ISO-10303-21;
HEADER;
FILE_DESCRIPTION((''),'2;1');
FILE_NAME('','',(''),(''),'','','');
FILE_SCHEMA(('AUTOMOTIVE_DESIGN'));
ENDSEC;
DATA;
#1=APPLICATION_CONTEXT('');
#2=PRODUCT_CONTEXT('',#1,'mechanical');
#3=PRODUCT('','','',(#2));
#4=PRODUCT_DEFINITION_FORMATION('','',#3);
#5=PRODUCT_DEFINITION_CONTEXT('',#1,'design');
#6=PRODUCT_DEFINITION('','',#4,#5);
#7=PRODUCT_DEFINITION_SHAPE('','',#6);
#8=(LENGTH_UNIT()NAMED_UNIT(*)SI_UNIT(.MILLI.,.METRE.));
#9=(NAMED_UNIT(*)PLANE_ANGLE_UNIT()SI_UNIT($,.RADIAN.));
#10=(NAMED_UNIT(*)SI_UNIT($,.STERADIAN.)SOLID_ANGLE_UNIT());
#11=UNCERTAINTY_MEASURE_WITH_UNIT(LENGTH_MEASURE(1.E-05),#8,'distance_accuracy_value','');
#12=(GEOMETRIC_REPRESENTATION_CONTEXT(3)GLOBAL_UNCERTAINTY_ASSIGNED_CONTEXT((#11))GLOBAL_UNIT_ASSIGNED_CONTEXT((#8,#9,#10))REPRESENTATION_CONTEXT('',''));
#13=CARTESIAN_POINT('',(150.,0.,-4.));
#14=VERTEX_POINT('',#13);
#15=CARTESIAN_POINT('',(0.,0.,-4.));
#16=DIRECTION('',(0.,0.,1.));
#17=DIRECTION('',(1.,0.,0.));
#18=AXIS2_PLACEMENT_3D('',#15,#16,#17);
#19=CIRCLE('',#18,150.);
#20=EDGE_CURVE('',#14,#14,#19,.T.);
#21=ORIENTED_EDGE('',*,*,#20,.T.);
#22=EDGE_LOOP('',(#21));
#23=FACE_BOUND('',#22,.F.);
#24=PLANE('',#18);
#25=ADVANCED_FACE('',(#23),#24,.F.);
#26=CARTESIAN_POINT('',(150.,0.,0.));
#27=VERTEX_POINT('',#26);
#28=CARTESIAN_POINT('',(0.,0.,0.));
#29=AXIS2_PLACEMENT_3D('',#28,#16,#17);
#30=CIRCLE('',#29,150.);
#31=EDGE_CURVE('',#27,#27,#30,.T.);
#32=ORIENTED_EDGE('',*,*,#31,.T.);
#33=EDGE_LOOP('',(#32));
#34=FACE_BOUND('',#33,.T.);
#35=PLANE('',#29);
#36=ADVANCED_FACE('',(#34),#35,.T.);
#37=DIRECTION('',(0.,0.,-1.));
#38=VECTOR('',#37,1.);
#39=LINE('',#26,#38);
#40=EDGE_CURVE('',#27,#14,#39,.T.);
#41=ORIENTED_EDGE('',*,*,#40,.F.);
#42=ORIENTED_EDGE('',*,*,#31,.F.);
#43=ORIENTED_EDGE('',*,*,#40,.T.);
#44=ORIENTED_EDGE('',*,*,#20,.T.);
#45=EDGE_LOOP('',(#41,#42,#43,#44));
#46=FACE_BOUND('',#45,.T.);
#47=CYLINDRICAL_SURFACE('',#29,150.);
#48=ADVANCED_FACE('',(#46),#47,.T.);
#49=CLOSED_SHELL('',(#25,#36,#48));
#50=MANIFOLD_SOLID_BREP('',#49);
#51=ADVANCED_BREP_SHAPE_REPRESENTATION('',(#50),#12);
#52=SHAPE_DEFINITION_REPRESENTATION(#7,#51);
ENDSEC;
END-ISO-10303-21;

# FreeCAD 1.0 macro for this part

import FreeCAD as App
import Part
import Sketcher
from FreeCAD import Vector
Q = App.Units.Quantity

doc = App.newDocument("Part")
params = doc.addObject("Spreadsheet::Sheet", "Params")
for row, (alias, value) in enumerate([
    ("sketch1_diameter", "300 mm"),
    ("pad1_length", "4 mm"),
], start=1):
    params.set(f"A{row}", alias)
    params.set(f"B{row}", "=" + value)
    params.setAlias(f"B{row}", alias)

body = doc.addObject("PartDesign::Body", "Body")

# Sketch on XY plane
sketch1 = body.newObject("Sketcher::SketchObject", "Sketch")
sketch1.AttachmentSupport = (doc.getObject("XY_Plane"), [""])
sketch1.MapMode = "FlatFace"
sketch1.addGeometry(Part.Circle(Vector(0, 0, 0), Vector(0, 0, 1), 150), False)
sketch1.addConstraint([
    Sketcher.Constraint("Coincident", 0, 3, -1, 1),
    Sketcher.Constraint("Diameter", 0, Q("300 mm")),
])
sketch1.setExpression("Constraints[1]", "Params.sketch1_diameter")
pad1 = body.newObject("PartDesign::Pad", "Pad")
pad1.Profile = sketch1
pad1.setExpression("Length", "Params.pad1_length")
pad1.Reversed = True

doc.recompute()
